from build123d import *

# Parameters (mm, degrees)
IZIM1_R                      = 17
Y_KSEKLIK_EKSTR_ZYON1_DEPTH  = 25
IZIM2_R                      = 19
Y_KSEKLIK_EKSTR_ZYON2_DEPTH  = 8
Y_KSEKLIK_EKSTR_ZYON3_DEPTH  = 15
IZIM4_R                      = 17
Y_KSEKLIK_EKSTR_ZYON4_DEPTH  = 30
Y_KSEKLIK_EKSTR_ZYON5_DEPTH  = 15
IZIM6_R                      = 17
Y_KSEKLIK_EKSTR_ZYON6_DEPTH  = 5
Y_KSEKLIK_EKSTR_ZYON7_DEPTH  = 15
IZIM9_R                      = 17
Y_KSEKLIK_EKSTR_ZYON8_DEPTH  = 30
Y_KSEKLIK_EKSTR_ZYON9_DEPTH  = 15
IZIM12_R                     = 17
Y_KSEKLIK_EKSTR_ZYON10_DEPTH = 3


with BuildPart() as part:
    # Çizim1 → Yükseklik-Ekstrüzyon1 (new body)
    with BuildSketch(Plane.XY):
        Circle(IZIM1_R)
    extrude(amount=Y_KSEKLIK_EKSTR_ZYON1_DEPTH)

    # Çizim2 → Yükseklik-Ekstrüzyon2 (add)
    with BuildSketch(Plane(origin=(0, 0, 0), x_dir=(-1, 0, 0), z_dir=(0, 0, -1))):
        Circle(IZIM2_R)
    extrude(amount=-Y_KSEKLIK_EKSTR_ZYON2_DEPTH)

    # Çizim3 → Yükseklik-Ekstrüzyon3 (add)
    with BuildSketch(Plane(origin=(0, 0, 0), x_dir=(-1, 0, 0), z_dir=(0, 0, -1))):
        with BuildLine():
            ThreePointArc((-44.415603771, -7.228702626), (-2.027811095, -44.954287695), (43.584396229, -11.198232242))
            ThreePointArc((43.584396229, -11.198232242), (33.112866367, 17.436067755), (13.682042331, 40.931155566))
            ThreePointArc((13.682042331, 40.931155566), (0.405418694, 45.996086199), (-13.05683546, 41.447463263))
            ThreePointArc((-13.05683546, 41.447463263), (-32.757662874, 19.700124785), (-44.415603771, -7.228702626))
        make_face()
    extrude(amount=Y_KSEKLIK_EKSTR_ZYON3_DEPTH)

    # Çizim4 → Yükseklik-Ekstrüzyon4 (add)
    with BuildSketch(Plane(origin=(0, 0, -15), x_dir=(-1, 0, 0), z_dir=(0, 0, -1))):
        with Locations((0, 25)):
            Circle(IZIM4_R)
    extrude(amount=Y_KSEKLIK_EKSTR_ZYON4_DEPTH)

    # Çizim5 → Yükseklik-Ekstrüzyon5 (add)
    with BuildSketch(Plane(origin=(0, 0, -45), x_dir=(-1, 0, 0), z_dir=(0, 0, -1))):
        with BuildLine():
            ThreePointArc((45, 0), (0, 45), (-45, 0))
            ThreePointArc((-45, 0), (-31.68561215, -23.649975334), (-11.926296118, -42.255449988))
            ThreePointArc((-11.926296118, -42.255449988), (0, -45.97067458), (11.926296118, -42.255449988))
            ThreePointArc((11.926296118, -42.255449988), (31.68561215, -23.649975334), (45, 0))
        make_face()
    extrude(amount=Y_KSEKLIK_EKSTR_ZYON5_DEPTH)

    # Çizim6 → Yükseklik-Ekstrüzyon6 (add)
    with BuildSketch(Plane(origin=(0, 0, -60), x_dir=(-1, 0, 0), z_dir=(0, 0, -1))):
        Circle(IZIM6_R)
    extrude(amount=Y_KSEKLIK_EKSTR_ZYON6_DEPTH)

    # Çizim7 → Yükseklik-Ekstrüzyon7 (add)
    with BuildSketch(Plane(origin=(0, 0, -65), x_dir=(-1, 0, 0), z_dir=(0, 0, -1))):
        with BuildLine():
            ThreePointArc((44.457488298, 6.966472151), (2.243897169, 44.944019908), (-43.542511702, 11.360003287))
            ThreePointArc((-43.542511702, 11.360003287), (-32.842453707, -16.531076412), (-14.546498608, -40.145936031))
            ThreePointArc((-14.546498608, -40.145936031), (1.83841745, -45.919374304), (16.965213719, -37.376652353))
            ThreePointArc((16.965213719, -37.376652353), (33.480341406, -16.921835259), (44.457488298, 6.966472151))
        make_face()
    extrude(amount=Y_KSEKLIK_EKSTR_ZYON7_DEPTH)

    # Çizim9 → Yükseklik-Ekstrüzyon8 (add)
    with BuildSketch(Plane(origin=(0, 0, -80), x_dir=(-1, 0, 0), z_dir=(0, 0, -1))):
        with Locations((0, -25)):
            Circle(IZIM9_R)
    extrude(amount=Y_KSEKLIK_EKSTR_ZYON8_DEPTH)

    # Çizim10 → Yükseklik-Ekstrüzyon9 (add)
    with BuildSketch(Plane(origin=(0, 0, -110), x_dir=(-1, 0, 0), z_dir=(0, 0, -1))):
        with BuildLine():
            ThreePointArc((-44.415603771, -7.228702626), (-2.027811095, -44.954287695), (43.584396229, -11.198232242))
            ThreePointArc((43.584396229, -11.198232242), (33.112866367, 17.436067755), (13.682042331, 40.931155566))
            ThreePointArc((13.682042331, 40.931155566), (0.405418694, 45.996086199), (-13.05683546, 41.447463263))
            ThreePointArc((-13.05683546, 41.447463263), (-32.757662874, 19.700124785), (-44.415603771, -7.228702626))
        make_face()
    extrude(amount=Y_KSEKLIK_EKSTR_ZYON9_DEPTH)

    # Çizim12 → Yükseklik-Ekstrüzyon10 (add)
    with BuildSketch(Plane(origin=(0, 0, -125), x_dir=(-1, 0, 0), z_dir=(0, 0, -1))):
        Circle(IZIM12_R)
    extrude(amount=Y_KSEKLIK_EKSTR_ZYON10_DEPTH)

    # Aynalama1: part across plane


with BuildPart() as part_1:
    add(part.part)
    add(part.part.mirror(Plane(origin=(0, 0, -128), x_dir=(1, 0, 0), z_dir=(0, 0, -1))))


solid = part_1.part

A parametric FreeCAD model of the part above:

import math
import FreeCAD as App
import Part
import Sketcher

V = App.Vector

doc = App.newDocument("Part")
body = doc.addObject("PartDesign::Body", "Body")

sketch1 = body.newObject("Sketcher::SketchObject", "Sketch")
sketch1.AttachmentSupport = (doc.getObject("XY_Plane"), [""])
sketch1.MapMode = "FlatFace"
sketch1.addGeometry(Part.Circle(V(0, 0, 0), V(0, 0, 1), 17), False)
sketch1.addConstraint(Sketcher.Constraint("Coincident", 0, 3, -1, 1))
sketch1.addConstraint(Sketcher.Constraint("Diameter", 0, 34.0))
pad1 = body.newObject("PartDesign::Pad", "Pad")
pad1.Profile = sketch1
pad1.Length = 25

sketch2 = body.newObject("Sketcher::SketchObject", "Sketch001")
sketch2.AttachmentSupport = (doc.getObject("XY_Plane"), [""])
sketch2.MapMode = "FlatFace"
sketch2.addGeometry(Part.Circle(V(0, 0, 0), V(0, 0, 1), 19), False)
sketch2.addConstraint(Sketcher.Constraint("Coincident", 0, 3, -1, 1))
sketch2.addConstraint(Sketcher.Constraint("Diameter", 0, 38.0))
pad2 = body.newObject("PartDesign::Pad", "Pad001")
pad2.Profile = sketch2
pad2.Length = 8

sketch3 = body.newObject("Sketcher::SketchObject", "Sketch002")
sketch3.AttachmentSupport = (doc.getObject("XY_Plane"), [""])
sketch3.MapMode = "FlatFace"
sketch3.addGeometry(Part.ArcOfCircle(Part.Circle(V(0, 0, 0), V(0, 0, 1), 45), math.radians(-165.590552), math.radians(-9.24392)), False)
sketch3.addGeometry(Part.ArcOfCircle(Part.Circle(V(44.955282, -27.345225, 0), V(0, 0, 1), 90), math.radians(130.656742), math.radians(169.664544)), False)
sketch3.addGeometry(Part.ArcOfCircle(Part.Circle(V(0, 25, 0), V(0, 0, 1), 21), math.radians(51.555661), math.radians(130.656742)), False)
sketch3.addGeometry(Part.ArcOfCircle(Part.Circle(V(-42.901031, -29.041665, 0), V(0, 0, 1), 90), math.radians(14.02624), math.radians(51.555661)), False)
sketch3.addConstraint(Sketcher.Constraint("Coincident", 0, 1, 1, 2))
sketch3.addConstraint(Sketcher.Constraint("Tangent", 1, 1, 2, 2))
sketch3.addConstraint(Sketcher.Constraint("Tangent", 2, 1, 3, 2))
sketch3.addConstraint(Sketcher.Constraint("Coincident", 3, 1, 0, 2))
sketch3.addConstraint(Sketcher.Constraint("Coincident", 0, 3, -1, 1))
sketch3.addConstraint(Sketcher.Constraint("Equal", 1, 3))
sketch3.addConstraint(Sketcher.Constraint("PointOnObject", 2, 3, -2))
sketch3.addConstraint(Sketcher.Constraint("Radius", 0, 45.0))
sketch3.addConstraint(Sketcher.Constraint("Radius", 1, 90.0))
sketch3.addConstraint(Sketcher.Constraint("Radius", 2, 21.0))
sketch3.addConstraint(Sketcher.Constraint("DistanceY", -1, 1, 2, 3, 25.0))
sketch3.addConstraint(Sketcher.Constraint("DistanceX", -1, 1, 1, 3, 44.955282))
sketch3.addConstraint(Sketcher.Constraint("DistanceX", 3, 3, -1, 1, 42.901031))
pad3 = body.newObject("PartDesign::Pad", "Pad002")
pad3.Profile = sketch3
pad3.Length = 15
pad3.Reversed = True

sketch4 = body.newObject("Sketcher::SketchObject", "Sketch003")
sketch4.AttachmentSupport = (doc.getObject("XY_Plane"), [""])
sketch4.MapMode = "FlatFace"
sketch4.AttachmentOffset = App.Placement(V(0, 0, -15), App.Rotation())
sketch4.addGeometry(Part.Circle(V(0, 25, 0), V(0, 0, 1), 17), False)
sketch4.addConstraint(Sketcher.Constraint("PointOnObject", 0, 3, -2))
sketch4.addConstraint(Sketcher.Constraint("Diameter", 0, 34.0))
sketch4.addConstraint(Sketcher.Constraint("DistanceY", -1, 1, 0, 3, 25.0))
pad4 = body.newObject("PartDesign::Pad", "Pad003")
pad4.Profile = sketch4
pad4.Length = 30
pad4.Reversed = True

sketch5 = body.newObject("Sketcher::SketchObject", "Sketch004")
sketch5.AttachmentSupport = (doc.getObject("XY_Plane"), [""])
sketch5.MapMode = "FlatFace"
sketch5.AttachmentOffset = App.Placement(V(0, 0, -45), App.Rotation())
sketch5.addGeometry(Part.ArcOfCircle(Part.Circle(V(0, 0, 0), V(0, 0, 1), 45), math.radians(0), math.radians(180)), False)
sketch5.addGeometry(Part.ArcOfCircle(Part.Circle(V(-39.186402, 31.822159, 0), V(0, 0, 1), 90), math.radians(-55.394771), math.radians(-20.706413)), False)
sketch5.addGeometry(Part.ArcOfCircle(Part.Circle(V(0, -24.970675, 0), V(0, 0, 1), 21), math.radians(-124.605229), math.radians(-55.394771)), False)
sketch5.addGeometry(Part.ArcOfCircle(Part.Circle(V(39.186402, 31.822159, 0), V(0, 0, 1), 90), math.radians(-159.293587), math.radians(-124.605229)), False)
sketch5.addConstraint(Sketcher.Constraint("Coincident", 0, 1, 1, 2))
sketch5.addConstraint(Sketcher.Constraint("Tangent", 1, 1, 2, 2))
sketch5.addConstraint(Sketcher.Constraint("Tangent", 2, 1, 3, 2))
sketch5.addConstraint(Sketcher.Constraint("Coincident", 3, 1, 0, 2))
sketch5.addConstraint(Sketcher.Constraint("Coincident", 0, 3, -1, 1))
sketch5.addConstraint(Sketcher.Constraint("Equal", 1, 3))
sketch5.addConstraint(Sketcher.Constraint("Symmetric", 1, 3, 3, 3, -2))
sketch5.addConstraint(Sketcher.Constraint("PointOnObject", 0, 1, -1))
sketch5.addConstraint(Sketcher.Constraint("Radius", 0, 45.0))
sketch5.addConstraint(Sketcher.Constraint("Radius", 1, 90.0))
sketch5.addConstraint(Sketcher.Constraint("Radius", 2, 21.0))
sketch5.addConstraint(Sketcher.Constraint("DistanceX", 1, 3, -1, 1, 39.186402))
pad5 = body.newObject("PartDesign::Pad", "Pad004")
pad5.Profile = sketch5
pad5.Length = 15
pad5.Reversed = True

sketch6 = body.newObject("Sketcher::SketchObject", "Sketch005")
sketch6.AttachmentSupport = (doc.getObject("XY_Plane"), [""])
sketch6.MapMode = "FlatFace"
sketch6.AttachmentOffset = App.Placement(V(0, 0, -60), App.Rotation())
sketch6.addGeometry(Part.Circle(V(0, 0, 0), V(0, 0, 1), 17), False)
sketch6.addConstraint(Sketcher.Constraint("Coincident", 0, 3, -1, 1))
sketch6.addConstraint(Sketcher.Constraint("Diameter", 0, 34.0))
pad6 = body.newObject("PartDesign::Pad", "Pad005")
pad6.Profile = sketch6
pad6.Length = 5
pad6.Reversed = True

sketch7 = body.newObject("Sketcher::SketchObject", "Sketch006")
sketch7.AttachmentSupport = (doc.getObject("XY_Plane"), [""])
sketch7.MapMode = "FlatFace"
sketch7.AttachmentOffset = App.Placement(V(0, 0, -65), App.Rotation())
sketch7.addGeometry(Part.ArcOfCircle(Part.Circle(V(0, 0, 0), V(0, 0, 1), 45), math.radians(14.622213), math.radians(171.094194)), False)
sketch7.addGeometry(Part.ArcOfCircle(Part.Circle(V(-56.368847, 33.691715, 0), V(0, 0, 1), 102.376681), math.radians(-46.156543), math.radians(-12.599387)), False)
sketch7.addGeometry(Part.ArcOfCircle(Part.Circle(V(0, -25, 0), V(0, 0, 1), 21), math.radians(-143.888083), math.radians(-46.156543)), False)
sketch7.addGeometry(Part.ArcOfCircle(Part.Circle(V(56.669029, 38.969834, 0), V(0, 0, 1), 106.06973), math.radians(-162.439059), math.radians(-133.963979)), False)
sketch7.addConstraint(Sketcher.Constraint("Coincident", 0, 1, 1, 2))
sketch7.addConstraint(Sketcher.Constraint("Tangent", 1, 1, 2, 2))
sketch7.addConstraint(Sketcher.Constraint("Coincident", 2, 1, 3, 2))
sketch7.addConstraint(Sketcher.Constraint("Coincident", 3, 1, 0, 2))
sketch7.addConstraint(Sketcher.Constraint("Coincident", 0, 3, -1, 1))
sketch7.addConstraint(Sketcher.Constraint("PointOnObject", 2, 3, -2))
sketch7.addConstraint(Sketcher.Constraint("Radius", 0, 45.0))
sketch7.addConstraint(Sketcher.Constraint("Radius", 2, 21.0))
sketch7.addConstraint(Sketcher.Constraint("DistanceY", 2, 3, -1, 1, 25.0))
sketch7.addConstraint(Sketcher.Constraint("Radius", 1, 102.376681))
sketch7.addConstraint(Sketcher.Constraint("Radius", 3, 106.06973))
sketch7.addConstraint(Sketcher.Constraint("DistanceX", -1, 1, 1, 1, 14.546499))
sketch7.addConstraint(Sketcher.Constraint("DistanceX", -1, 1, 3, 3, 56.669029))
sketch7.addConstraint(Sketcher.Constraint("DistanceX", 3, 1, -1, 1, 44.457488))
pad7 = body.newObject("PartDesign::Pad", "Pad006")
pad7.Profile = sketch7
pad7.Length = 15
pad7.Reversed = True

sketch8 = body.newObject("Sketcher::SketchObject", "Sketch007")
sketch8.AttachmentSupport = (doc.getObject("XY_Plane"), [""])
sketch8.MapMode = "FlatFace"
sketch8.AttachmentOffset = App.Placement(V(0, 0, -80), App.Rotation())
sketch8.addGeometry(Part.Circle(V(0, -25, 0), V(0, 0, 1), 17), False)
sketch8.addConstraint(Sketcher.Constraint("PointOnObject", 0, 3, -2))
sketch8.addConstraint(Sketcher.Constraint("Diameter", 0, 34.0))
sketch8.addConstraint(Sketcher.Constraint("DistanceY", 0, 3, -1, 1, 25.0))
pad8 = body.newObject("PartDesign::Pad", "Pad007")
pad8.Profile = sketch8
pad8.Length = 30
pad8.Reversed = True

sketch9 = body.newObject("Sketcher::SketchObject", "Sketch008")
sketch9.AttachmentSupport = (doc.getObject("XY_Plane"), [""])
sketch9.MapMode = "FlatFace"
sketch9.AttachmentOffset = App.Placement(V(0, 0, -110), App.Rotation())
sketch9.addGeometry(Part.ArcOfCircle(Part.Circle(V(0, 0, 0), V(0, 0, 1), 45), math.radians(-165.590552), math.radians(-9.24392)), False)
sketch9.addGeometry(Part.ArcOfCircle(Part.Circle(V(44.955282, -27.345225, 0), V(0, 0, 1), 90), math.radians(130.656742), math.radians(169.664544)), False)
sketch9.addGeometry(Part.ArcOfCircle(Part.Circle(V(0, 25, 0), V(0, 0, 1), 21), math.radians(51.555661), math.radians(130.656742)), False)
sketch9.addGeometry(Part.ArcOfCircle(Part.Circle(V(-42.901031, -29.041665, 0), V(0, 0, 1), 90), math.radians(14.02624), math.radians(51.555661)), False)
sketch9.addConstraint(Sketcher.Constraint("Coincident", 0, 1, 1, 2))
sketch9.addConstraint(Sketcher.Constraint("Tangent", 1, 1, 2, 2))
sketch9.addConstraint(Sketcher.Constraint("Tangent", 2, 1, 3, 2))
sketch9.addConstraint(Sketcher.Constraint("Coincident", 3, 1, 0, 2))
sketch9.addConstraint(Sketcher.Constraint("Coincident", 0, 3, -1, 1))
sketch9.addConstraint(Sketcher.Constraint("Equal", 1, 3))
sketch9.addConstraint(Sketcher.Constraint("PointOnObject", 2, 3, -2))
sketch9.addConstraint(Sketcher.Constraint("Radius", 0, 45.0))
sketch9.addConstraint(Sketcher.Constraint("Radius", 1, 90.0))
sketch9.addConstraint(Sketcher.Constraint("Radius", 2, 21.0))
sketch9.addConstraint(Sketcher.Constraint("DistanceY", -1, 1, 2, 3, 25.0))
sketch9.addConstraint(Sketcher.Constraint("DistanceX", -1, 1, 1, 3, 44.955282))
sketch9.addConstraint(Sketcher.Constraint("DistanceX", 3, 3, -1, 1, 42.901031))
pad9 = body.newObject("PartDesign::Pad", "Pad008")
pad9.Profile = sketch9
pad9.Length = 15
pad9.Reversed = True

sketch10 = body.newObject("Sketcher::SketchObject", "Sketch009")
sketch10.AttachmentSupport = (doc.getObject("XY_Plane"), [""])
sketch10.MapMode = "FlatFace"
sketch10.AttachmentOffset = App.Placement(V(0, 0, -125), App.Rotation())
sketch10.addGeometry(Part.Circle(V(0, 0, 0), V(0, 0, 1), 17), False)
sketch10.addConstraint(Sketcher.Constraint("Coincident", 0, 3, -1, 1))
sketch10.addConstraint(Sketcher.Constraint("Diameter", 0, 34.0))
pad10 = body.newObject("PartDesign::Pad", "Pad009")
pad10.Profile = sketch10
pad10.Length = 3
pad10.Reversed = True
body2 = doc.addObject("PartDesign::Body", "Body001")
doc.recompute()

body2.BaseFeature = body
doc.recompute()

mirroring = doc.addObject("Part::Mirroring", "Mirroring")
mirroring.Source = body
mirroring.Base = V(0, 0, -128)
mirroring.Normal = V(0, 0, -1)
body3 = doc.addObject("PartDesign::Body", "Body002")
body3.BaseFeature = mirroring
boolean = body2.newObject("PartDesign::Boolean", "Boolean")
boolean.Type = "Fuse"
boolean.addObjects([body3])
doc.recompute()
mirroring.Visibility = False

doc.recompute()
